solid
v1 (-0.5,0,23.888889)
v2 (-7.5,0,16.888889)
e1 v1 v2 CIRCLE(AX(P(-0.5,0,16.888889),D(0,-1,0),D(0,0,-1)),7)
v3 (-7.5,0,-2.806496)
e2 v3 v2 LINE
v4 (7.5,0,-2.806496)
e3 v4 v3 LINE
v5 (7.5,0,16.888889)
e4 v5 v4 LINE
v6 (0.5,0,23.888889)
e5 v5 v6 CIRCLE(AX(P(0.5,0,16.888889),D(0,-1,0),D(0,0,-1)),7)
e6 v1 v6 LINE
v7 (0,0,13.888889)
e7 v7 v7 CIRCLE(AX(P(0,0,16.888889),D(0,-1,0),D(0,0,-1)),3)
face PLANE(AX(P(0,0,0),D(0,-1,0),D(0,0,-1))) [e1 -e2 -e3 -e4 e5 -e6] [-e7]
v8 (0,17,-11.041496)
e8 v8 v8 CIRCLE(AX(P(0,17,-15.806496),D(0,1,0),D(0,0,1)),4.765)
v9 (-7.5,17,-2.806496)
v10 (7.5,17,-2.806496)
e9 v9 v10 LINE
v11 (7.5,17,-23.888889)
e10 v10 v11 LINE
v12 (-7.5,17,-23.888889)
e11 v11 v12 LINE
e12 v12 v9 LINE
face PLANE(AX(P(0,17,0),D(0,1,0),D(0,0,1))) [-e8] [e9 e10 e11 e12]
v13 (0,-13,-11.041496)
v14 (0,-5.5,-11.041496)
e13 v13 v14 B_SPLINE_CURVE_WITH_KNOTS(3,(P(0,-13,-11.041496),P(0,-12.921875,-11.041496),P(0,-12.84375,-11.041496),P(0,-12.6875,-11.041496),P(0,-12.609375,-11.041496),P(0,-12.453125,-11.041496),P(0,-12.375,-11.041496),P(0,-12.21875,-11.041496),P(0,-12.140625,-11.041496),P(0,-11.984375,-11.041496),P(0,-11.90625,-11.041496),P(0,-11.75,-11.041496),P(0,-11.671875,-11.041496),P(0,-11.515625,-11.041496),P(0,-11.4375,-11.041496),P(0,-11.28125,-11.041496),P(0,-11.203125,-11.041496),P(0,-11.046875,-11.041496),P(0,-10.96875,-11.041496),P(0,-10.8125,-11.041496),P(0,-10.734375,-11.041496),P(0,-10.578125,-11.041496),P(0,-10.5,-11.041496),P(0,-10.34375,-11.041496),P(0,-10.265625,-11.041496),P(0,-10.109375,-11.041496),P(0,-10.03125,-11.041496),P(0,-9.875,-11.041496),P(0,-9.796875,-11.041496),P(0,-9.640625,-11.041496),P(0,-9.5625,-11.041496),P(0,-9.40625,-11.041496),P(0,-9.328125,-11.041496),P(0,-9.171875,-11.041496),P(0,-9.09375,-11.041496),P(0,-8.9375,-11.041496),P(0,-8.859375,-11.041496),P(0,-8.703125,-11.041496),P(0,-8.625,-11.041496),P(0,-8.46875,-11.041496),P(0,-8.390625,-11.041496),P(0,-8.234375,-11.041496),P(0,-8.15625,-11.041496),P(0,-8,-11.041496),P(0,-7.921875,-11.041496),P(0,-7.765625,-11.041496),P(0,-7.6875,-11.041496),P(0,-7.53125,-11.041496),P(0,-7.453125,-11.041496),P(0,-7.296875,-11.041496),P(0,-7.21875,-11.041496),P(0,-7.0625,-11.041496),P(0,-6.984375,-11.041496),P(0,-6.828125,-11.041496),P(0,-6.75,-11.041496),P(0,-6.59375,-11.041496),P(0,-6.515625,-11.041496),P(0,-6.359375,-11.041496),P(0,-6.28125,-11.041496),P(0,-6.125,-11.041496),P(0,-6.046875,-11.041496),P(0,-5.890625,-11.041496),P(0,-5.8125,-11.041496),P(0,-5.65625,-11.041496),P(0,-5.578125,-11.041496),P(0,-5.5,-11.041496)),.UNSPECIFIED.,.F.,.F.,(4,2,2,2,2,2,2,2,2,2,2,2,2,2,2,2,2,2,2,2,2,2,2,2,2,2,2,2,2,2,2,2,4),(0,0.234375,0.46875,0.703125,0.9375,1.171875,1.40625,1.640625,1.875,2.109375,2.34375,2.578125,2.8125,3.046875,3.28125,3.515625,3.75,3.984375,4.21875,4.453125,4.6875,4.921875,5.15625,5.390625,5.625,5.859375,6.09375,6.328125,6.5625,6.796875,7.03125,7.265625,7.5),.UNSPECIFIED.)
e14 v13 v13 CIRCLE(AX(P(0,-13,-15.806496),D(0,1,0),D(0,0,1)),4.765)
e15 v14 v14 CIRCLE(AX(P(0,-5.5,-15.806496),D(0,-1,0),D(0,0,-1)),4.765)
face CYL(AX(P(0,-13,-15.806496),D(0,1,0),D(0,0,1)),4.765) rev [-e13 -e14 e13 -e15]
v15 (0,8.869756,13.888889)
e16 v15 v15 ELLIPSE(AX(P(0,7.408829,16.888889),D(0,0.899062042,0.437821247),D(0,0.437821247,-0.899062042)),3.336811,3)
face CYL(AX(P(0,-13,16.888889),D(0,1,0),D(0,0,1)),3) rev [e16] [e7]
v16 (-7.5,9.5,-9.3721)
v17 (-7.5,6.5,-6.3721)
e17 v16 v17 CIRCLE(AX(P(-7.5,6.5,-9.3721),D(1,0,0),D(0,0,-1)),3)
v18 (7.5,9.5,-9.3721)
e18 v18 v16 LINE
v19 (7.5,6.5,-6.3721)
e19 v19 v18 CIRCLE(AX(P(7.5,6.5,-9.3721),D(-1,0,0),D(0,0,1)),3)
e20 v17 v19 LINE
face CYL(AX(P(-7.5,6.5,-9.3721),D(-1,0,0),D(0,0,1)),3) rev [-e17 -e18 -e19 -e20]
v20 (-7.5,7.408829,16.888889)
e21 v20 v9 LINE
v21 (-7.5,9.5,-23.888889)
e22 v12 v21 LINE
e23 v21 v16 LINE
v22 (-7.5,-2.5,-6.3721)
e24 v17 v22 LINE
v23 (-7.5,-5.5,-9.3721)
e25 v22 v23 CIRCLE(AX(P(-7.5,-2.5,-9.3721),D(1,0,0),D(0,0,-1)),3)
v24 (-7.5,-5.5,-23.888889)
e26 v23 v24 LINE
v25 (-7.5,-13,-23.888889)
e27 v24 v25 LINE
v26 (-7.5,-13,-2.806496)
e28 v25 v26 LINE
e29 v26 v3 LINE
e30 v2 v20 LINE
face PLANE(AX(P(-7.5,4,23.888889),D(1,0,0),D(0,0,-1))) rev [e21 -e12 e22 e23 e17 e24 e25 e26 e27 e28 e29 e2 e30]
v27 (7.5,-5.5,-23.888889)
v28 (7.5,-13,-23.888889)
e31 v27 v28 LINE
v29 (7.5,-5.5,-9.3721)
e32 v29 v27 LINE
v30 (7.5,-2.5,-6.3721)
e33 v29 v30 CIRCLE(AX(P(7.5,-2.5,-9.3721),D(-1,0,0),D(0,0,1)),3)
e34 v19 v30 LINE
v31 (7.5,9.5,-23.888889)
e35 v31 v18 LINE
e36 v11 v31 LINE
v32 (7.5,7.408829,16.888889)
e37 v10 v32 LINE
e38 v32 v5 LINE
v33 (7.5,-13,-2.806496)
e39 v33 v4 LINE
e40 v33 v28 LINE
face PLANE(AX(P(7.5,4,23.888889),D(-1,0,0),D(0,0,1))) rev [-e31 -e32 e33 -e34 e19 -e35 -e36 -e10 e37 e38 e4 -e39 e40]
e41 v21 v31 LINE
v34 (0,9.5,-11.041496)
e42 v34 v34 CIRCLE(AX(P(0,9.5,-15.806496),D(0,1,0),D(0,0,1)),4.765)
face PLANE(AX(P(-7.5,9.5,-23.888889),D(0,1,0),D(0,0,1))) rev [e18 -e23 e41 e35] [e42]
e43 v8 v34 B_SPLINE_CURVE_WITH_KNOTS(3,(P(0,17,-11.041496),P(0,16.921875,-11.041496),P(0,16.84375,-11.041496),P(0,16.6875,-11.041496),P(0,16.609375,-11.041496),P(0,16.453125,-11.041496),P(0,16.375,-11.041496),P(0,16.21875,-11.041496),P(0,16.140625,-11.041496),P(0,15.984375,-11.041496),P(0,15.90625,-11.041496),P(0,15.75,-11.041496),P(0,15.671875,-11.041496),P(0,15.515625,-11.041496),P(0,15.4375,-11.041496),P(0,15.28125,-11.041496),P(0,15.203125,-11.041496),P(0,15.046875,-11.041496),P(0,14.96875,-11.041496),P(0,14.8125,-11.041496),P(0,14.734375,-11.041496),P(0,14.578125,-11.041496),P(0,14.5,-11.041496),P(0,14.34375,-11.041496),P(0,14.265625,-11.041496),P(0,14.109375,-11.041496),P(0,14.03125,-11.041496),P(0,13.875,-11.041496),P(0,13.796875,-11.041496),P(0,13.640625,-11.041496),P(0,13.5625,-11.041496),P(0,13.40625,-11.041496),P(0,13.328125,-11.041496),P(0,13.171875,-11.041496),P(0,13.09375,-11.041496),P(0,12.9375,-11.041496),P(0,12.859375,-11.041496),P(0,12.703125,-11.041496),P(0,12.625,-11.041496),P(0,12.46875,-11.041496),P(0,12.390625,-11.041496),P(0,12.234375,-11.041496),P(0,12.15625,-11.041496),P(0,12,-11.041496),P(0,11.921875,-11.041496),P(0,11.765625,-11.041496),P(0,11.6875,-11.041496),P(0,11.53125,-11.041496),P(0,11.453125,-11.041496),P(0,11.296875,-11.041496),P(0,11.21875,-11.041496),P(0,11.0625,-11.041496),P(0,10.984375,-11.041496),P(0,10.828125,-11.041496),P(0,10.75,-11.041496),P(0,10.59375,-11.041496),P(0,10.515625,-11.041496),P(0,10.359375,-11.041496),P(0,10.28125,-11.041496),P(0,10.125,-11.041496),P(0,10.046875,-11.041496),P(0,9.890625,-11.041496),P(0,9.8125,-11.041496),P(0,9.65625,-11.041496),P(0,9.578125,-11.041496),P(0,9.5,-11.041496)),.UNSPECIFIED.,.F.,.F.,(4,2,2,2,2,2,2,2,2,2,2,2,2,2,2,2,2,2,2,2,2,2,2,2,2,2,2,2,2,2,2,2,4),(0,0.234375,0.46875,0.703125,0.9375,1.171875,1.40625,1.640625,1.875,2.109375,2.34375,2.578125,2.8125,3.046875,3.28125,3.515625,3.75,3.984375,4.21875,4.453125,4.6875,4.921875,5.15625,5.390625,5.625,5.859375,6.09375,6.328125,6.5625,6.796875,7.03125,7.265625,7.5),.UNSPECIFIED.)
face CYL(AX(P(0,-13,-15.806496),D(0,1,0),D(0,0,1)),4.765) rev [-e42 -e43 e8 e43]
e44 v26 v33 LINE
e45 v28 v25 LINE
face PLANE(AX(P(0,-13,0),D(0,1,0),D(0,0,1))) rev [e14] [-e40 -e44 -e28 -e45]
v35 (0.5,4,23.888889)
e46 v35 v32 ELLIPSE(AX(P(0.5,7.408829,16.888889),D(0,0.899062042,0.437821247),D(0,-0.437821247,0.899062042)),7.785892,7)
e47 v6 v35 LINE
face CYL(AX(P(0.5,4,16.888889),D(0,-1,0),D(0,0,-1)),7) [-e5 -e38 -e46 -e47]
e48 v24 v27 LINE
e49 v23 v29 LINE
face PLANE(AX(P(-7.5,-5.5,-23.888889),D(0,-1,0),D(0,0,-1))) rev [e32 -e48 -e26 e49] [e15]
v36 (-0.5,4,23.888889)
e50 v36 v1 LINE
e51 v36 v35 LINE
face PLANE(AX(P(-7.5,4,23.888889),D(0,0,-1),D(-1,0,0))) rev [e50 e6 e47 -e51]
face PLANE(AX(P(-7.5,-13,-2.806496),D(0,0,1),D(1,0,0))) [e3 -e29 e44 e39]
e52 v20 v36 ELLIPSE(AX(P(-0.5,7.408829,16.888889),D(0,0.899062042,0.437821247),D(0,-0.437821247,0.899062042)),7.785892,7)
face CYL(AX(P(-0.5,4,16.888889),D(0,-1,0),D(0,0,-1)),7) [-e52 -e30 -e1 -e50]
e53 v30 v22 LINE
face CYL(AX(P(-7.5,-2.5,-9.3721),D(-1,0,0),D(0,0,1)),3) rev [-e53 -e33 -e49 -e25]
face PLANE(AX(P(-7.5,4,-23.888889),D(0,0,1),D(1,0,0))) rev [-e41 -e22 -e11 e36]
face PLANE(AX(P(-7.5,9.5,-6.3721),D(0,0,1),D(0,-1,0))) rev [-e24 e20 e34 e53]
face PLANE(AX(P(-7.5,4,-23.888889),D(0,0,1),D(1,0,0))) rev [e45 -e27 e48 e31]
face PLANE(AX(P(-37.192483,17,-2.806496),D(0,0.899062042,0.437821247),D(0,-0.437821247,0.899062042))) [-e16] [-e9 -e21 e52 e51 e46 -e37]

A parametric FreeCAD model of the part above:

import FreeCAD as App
import Part
import Sketcher


def edges_at(feature, points):
    """Names of the edges that pass closest to the given points."""
    edges = feature.Shape.Edges
    near = lambda p: min(range(len(edges)), key=lambda i: edges[i].distToShape(Part.Vertex(*p))[0])
    return sorted({f"Edge{near(p) + 1}" for p in points})


def add_polygon(sketch, points):
    """Adds a closed chain of lines whose ends are joined by coincident constraints."""
    first, n = sketch.GeometryCount, len(points)
    for a, b in zip(points, points[1:] + points[:1]):
        sketch.addGeometry(Part.LineSegment(App.Vector(*a, 0), App.Vector(*b, 0)), False)
    for i in range(n):
        sketch.addConstraint(Sketcher.Constraint("Coincident", first + i, 2, first + (i + 1) % n, 1))

doc = App.newDocument("Part")
params = doc.addObject("Spreadsheet::Sheet", "Params")
for row, (alias, value) in enumerate([
    ("sketch1_width", "15 mm"),
    ("pad1_length", "4 mm"),
    ("sketch2_width", "15 mm"),
    ("pad2_length", "13 mm"),
    ("pad2_length2", "17 mm"),
    ("sketch3_width", "15 mm"),
    ("sketch4_diameter", "9.53 mm"),
    ("fillet_radius", "3 mm"),
    ("sketch5_width", "13 mm"),
    ("pad3_length", "15 mm"),
    ("sketch6_diameter", "6 mm"),
    ("fillet2_radius", "7 mm"),
], start=1):
    params.set(f"A{row}", alias)
    params.set(f"B{row}", "=" + value)
    params.setAlias(f"B{row}", alias)

body = doc.addObject("PartDesign::Body", "Body")

sketch1 = body.newObject("Sketcher::SketchObject", "Sketch")
sketch1.AttachmentSupport = (doc.getObject("XZ_Plane"), [""])
sketch1.MapMode = "FlatFace"
add_polygon(sketch1, [(-8, -24), (-8, 24), (8, 24), (8, -24)])
sketch1.addConstraint([
    Sketcher.Constraint("Vertical", 0),
    Sketcher.Constraint("Horizontal", 1),
    Sketcher.Constraint("Vertical", 2),
    Sketcher.Constraint("Horizontal", 3),
    Sketcher.Constraint("Symmetric", 0, 2, 2, 2, -1, 1),
    Sketcher.Constraint("DistanceX", 1, 1, 1, 2, 15.0),
    Sketcher.Constraint("DistanceY", 0, 1, 0, 2, 47.777778),
])
sketch1.setExpression("Constraints[9]", "Params.sketch1_width")
pad1 = body.newObject("PartDesign::Pad", "Pad")
pad1.Profile = sketch1
pad1.setExpression("Length", "Params.pad1_length")
pad1.Reversed = True

sketch2 = body.newObject("Sketcher::SketchObject", "Sketch001")
sketch2.AttachmentSupport = (doc.getObject("XZ_Plane"), [""])
sketch2.MapMode = "FlatFace"
sketch2.AttachmentOffset = App.Placement(App.Vector(0, 0, -4), App.Rotation())
add_polygon(sketch2, [(-8, -24), (-8, -3), (8, -3), (8, -24)])
sketch2.addConstraint([
    Sketcher.Constraint("Vertical", 0),
    Sketcher.Constraint("Horizontal", 1),
    Sketcher.Constraint("Vertical", 2),
    Sketcher.Constraint("Horizontal", 3),
    Sketcher.Constraint("DistanceX", 1, 1, 1, 2, 15.0),
    Sketcher.Constraint("DistanceX", 0, 2, -1, 1, 7.5),
    Sketcher.Constraint("DistanceY", 0, 1, 0, 2, 21.082393),
    Sketcher.Constraint("DistanceY", 2, 2, -1, 1, 23.888889),
])
sketch2.setExpression("Constraints[8]", "Params.sketch2_width")
pad2 = body.newObject("PartDesign::Pad", "Pad001")
pad2.Profile = sketch2
pad2.Type = "TwoLengths"
pad2.setExpression("Length", "Params.pad2_length")
pad2.setExpression("Length2", "Params.pad2_length2")
pad2.Reversed = True

sketch3 = body.newObject("Sketcher::SketchObject", "Sketch002")
sketch3.AttachmentSupport = (doc.getObject("YZ_Plane"), [""])
sketch3.MapMode = "FlatFace"
sketch3.AttachmentOffset = App.Placement(App.Vector(0, 0, 7.5), App.Rotation())
add_polygon(sketch3, [(10, -6), (-6, -6), (-6, -24), (10, -24)])
sketch3.addConstraint([
    Sketcher.Constraint("Horizontal", 0),
    Sketcher.Constraint("Vertical", 1),
    Sketcher.Constraint("Horizontal", 2),
    Sketcher.Constraint("Vertical", 3),
    Sketcher.Constraint("DistanceX", 0, 2, 0, 1, 15.0),
    Sketcher.Constraint("DistanceX", 0, 2, -1, 1, 5.5),
    Sketcher.Constraint("DistanceY", 1, 2, 1, 1, 17.516789),
    Sketcher.Constraint("DistanceY", 0, 2, -1, 1, 6.3721),
])
sketch3.setExpression("Constraints[8]", "Params.sketch3_width")
pocket1 = body.newObject("PartDesign::Pocket", "Pocket")
pocket1.Profile = sketch3
pocket1.Type = "ThroughAll"

sketch4 = body.newObject("Sketcher::SketchObject", "Sketch003")
sketch4.AttachmentSupport = (doc.getObject("XZ_Plane"), [""])
sketch4.MapMode = "FlatFace"
sketch4.AttachmentOffset = App.Placement(App.Vector(0, 0, -17), App.Rotation())
sketch4.addGeometry(Part.Circle(App.Vector(0, -15.8, 0), App.Vector(0, 0, 1), 4.8), False)
sketch4.addConstraint([
    Sketcher.Constraint("PointOnObject", 0, 3, -2),
    Sketcher.Constraint("Diameter", 0, 9.53),
    Sketcher.Constraint("DistanceY", 0, 3, -1, 1, 15.806496),
])
sketch4.setExpression("Constraints[1]", "Params.sketch4_diameter")
pocket2 = body.newObject("PartDesign::Pocket", "Pocket001")
pocket2.Profile = sketch4
pocket2.Type = "ThroughAll"
pocket2.Reversed = True
doc.recompute()

fillet = body.newObject("PartDesign::Fillet", "Fillet")
fillet.Base = (pocket2, edges_at(pocket2, [(0, -5.5, -6.372), (0, 9.5, -6.372)]))
fillet.setExpression("Radius", "Params.fillet_radius")

sketch5 = body.newObject("Sketcher::SketchObject", "Sketch004")
sketch5.AttachmentSupport = (doc.getObject("YZ_Plane"), [""])
sketch5.MapMode = "FlatFace"
sketch5.AttachmentOffset = App.Placement(App.Vector(0, 0, 7.5), App.Rotation())
add_polygon(sketch5, [(17, -3), (4, 24), (4, -3)])
sketch5.addConstraint([
    Sketcher.Constraint("Vertical", 1),
    Sketcher.Constraint("Horizontal", 2),
    Sketcher.Constraint("DistanceX", 2, 1, 2, 2, 13.0),
    Sketcher.Constraint("DistanceX", -1, 1, 0, 2, 4.0),
    Sketcher.Constraint("DistanceY", 1, 2, 1, 1, 26.695385),
    Sketcher.Constraint("DistanceY", -1, 1, 0, 2, 23.888889),
])
sketch5.setExpression("Constraints[5]", "Params.sketch5_width")
pad3 = body.newObject("PartDesign::Pad", "Pad002")
pad3.Profile = sketch5
pad3.setExpression("Length", "Params.pad3_length")
pad3.Reversed = True

sketch6 = body.newObject("Sketcher::SketchObject", "Sketch005")
sketch6.AttachmentSupport = (doc.getObject("XZ_Plane"), [""])
sketch6.MapMode = "FlatFace"
sketch6.AttachmentOffset = App.Placement(App.Vector(0, 0, -4), App.Rotation())
sketch6.addGeometry(Part.Circle(App.Vector(0, 16.9, 0), App.Vector(0, 0, 1), 3), False)
sketch6.addConstraint([
    Sketcher.Constraint("PointOnObject", 0, 3, -2),
    Sketcher.Constraint("Diameter", 0, 6.0),
    Sketcher.Constraint("DistanceY", -1, 1, 0, 3, 16.888889),
])
sketch6.setExpression("Constraints[1]", "Params.sketch6_diameter")
pocket3 = body.newObject("PartDesign::Pocket", "Pocket002")
pocket3.Profile = sketch6
pocket3.Type = "ThroughAll"
pocket3.Midplane = True
doc.recompute()

fillet2 = body.newObject("PartDesign::Fillet", "Fillet001")
fillet2.Base = (pocket3, edges_at(pocket3, [(7.5, 2, 23.889), (-7.5, 2, 23.889)]))
fillet2.setExpression("Radius", "Params.fillet2_radius")

doc.recompute()
